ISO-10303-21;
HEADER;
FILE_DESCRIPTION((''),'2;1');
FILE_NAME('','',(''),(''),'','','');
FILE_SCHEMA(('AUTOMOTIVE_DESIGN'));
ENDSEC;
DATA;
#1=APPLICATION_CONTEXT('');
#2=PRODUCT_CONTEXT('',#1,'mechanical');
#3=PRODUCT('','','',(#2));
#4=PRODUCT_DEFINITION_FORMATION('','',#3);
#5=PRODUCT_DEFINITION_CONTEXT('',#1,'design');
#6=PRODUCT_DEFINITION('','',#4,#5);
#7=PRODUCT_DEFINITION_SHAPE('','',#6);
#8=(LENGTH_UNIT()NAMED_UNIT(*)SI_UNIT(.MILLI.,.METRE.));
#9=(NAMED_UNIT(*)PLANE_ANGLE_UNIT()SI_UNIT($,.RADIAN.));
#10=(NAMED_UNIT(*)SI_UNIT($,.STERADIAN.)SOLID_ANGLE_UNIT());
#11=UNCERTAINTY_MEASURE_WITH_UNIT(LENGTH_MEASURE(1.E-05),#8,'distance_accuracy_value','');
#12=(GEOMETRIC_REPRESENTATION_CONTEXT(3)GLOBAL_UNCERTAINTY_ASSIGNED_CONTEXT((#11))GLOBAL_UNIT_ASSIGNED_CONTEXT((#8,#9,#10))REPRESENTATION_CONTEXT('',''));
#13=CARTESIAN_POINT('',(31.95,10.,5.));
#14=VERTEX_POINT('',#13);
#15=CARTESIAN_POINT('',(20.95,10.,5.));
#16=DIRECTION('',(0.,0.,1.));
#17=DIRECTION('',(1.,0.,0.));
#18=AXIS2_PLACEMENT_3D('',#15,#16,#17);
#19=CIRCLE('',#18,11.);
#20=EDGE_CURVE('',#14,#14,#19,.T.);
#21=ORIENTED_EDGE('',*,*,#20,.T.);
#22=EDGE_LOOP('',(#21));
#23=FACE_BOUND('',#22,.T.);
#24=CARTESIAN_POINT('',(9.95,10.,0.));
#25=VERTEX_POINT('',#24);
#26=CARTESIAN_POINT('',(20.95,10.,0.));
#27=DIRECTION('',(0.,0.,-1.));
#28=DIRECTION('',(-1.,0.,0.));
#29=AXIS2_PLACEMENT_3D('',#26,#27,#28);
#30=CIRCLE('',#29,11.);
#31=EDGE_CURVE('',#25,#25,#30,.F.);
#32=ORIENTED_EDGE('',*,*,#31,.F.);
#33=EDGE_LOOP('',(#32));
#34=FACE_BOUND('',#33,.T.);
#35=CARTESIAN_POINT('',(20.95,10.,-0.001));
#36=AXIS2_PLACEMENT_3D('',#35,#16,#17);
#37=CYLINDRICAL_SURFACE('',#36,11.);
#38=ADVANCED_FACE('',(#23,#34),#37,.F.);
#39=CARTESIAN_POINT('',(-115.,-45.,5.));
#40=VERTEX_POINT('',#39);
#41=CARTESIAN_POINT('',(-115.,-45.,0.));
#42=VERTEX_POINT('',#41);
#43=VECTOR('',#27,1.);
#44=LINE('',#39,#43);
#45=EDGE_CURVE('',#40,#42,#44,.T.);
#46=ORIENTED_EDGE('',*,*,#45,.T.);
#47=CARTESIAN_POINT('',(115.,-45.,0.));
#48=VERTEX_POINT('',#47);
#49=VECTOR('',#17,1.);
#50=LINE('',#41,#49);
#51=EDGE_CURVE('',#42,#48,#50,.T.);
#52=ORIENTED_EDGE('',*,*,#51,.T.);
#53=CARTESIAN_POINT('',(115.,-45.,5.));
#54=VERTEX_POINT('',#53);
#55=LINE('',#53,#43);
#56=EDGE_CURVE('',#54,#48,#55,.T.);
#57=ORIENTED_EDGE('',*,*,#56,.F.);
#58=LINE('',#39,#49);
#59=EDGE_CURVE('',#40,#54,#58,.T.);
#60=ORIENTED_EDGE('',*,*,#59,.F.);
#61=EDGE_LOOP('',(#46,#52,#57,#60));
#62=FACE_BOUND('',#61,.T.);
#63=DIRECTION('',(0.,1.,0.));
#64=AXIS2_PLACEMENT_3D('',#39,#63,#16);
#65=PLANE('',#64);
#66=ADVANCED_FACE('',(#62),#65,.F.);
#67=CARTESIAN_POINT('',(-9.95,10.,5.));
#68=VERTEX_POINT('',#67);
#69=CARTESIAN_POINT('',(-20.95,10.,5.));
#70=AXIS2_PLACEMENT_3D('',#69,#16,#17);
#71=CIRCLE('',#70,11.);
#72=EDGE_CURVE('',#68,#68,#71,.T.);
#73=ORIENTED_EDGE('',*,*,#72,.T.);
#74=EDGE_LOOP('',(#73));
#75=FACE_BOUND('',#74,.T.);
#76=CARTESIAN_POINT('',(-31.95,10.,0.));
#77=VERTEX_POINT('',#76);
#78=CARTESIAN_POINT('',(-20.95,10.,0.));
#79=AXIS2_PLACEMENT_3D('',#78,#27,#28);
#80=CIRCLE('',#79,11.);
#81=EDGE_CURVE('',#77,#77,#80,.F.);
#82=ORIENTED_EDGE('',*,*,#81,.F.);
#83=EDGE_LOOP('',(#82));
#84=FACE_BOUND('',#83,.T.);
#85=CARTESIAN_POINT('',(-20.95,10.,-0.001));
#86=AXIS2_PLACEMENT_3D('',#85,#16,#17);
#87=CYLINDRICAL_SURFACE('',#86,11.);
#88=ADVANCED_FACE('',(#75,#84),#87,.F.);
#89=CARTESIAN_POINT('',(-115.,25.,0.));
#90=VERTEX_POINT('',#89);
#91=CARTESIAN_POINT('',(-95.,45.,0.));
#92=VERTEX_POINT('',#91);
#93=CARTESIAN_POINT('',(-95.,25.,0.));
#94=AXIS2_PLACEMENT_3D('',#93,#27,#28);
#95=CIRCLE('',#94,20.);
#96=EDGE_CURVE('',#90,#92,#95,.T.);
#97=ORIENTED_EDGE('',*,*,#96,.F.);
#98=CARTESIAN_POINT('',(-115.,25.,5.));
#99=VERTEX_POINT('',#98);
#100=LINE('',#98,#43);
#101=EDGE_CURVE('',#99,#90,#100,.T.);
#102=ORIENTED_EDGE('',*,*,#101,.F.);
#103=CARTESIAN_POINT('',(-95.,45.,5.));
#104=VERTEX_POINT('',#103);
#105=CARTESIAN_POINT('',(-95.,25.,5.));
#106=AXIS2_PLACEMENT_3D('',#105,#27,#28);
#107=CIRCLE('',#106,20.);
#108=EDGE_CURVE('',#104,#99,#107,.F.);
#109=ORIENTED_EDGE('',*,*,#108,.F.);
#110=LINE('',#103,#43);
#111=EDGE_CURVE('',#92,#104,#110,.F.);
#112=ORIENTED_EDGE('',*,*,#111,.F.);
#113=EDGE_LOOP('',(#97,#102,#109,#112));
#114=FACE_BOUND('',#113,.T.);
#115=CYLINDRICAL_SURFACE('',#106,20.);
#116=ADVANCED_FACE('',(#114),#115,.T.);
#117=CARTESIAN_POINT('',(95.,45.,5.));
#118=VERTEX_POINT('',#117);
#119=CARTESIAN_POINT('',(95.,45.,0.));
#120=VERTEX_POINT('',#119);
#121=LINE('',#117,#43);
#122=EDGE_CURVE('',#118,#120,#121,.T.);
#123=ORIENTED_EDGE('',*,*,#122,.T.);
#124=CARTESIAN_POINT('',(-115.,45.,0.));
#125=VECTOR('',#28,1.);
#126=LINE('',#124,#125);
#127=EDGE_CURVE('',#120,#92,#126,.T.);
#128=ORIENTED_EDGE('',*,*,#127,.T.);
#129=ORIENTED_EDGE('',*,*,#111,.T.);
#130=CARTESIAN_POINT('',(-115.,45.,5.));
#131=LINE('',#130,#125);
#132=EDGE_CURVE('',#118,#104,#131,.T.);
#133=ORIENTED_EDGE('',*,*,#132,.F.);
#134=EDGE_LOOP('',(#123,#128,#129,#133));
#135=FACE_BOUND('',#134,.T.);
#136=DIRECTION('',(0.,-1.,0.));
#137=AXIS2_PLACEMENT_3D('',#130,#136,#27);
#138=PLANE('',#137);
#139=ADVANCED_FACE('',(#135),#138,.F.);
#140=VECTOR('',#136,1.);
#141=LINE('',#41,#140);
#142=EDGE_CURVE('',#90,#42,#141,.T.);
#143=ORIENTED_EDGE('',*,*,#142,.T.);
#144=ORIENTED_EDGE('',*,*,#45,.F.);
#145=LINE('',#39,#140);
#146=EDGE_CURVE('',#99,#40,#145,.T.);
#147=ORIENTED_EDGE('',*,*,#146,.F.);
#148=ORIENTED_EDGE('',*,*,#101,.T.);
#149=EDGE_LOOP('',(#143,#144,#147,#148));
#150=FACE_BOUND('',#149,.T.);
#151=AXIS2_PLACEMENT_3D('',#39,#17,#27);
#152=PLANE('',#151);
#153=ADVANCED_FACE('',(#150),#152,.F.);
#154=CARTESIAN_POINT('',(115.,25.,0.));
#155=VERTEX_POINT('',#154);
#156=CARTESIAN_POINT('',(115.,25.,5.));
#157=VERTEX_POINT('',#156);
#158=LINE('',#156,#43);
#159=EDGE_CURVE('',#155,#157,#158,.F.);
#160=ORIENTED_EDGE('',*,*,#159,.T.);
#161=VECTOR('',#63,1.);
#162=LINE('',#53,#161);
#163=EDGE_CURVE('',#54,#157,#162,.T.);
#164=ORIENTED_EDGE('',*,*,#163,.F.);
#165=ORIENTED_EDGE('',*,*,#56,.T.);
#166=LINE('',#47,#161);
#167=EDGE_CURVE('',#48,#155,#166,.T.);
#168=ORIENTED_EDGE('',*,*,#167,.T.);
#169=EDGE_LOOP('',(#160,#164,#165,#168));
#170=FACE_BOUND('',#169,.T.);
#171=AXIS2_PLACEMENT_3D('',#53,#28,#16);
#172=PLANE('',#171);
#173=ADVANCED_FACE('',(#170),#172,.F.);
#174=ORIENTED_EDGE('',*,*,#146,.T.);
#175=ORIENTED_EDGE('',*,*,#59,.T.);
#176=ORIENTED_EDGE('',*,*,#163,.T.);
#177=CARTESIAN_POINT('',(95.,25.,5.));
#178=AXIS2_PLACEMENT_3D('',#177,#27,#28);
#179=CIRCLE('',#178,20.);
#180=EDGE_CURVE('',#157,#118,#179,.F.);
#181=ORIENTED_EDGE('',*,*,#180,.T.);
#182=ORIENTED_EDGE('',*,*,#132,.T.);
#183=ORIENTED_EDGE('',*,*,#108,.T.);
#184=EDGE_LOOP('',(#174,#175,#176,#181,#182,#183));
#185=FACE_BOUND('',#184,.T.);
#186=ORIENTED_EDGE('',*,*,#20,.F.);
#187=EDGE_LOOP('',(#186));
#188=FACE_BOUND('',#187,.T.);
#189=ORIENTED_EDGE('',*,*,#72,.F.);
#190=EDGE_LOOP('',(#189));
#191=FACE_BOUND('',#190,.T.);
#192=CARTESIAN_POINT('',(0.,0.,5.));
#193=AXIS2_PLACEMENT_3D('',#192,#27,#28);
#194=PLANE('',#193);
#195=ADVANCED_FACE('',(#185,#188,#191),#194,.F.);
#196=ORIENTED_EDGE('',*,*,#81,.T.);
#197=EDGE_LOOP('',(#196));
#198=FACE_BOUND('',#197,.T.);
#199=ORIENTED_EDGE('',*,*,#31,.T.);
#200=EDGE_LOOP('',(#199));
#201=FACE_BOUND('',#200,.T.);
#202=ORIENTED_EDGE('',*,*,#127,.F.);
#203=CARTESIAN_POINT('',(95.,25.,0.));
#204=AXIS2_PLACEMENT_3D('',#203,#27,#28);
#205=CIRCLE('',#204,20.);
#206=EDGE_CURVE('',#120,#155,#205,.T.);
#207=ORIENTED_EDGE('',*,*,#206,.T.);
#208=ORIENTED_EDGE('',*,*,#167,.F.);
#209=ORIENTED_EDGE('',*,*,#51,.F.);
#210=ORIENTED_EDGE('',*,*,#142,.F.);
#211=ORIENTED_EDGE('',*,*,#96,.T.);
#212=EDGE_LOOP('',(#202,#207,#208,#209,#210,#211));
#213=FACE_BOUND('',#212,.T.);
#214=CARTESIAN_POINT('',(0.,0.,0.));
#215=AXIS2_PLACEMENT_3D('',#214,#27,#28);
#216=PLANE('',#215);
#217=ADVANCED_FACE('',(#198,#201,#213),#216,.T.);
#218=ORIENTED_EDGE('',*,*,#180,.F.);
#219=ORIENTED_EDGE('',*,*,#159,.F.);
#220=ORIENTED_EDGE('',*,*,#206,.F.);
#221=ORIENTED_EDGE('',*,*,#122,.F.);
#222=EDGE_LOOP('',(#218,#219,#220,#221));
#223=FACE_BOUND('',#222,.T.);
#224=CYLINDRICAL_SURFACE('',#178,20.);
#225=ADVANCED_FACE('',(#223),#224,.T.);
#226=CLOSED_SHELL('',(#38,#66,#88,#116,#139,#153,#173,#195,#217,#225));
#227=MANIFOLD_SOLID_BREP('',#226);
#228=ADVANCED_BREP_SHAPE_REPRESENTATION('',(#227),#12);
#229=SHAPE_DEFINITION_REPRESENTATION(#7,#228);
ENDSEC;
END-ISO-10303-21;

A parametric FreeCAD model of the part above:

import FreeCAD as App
import Part
import Sketcher

V = App.Vector
Q = App.Units.Quantity


def edges_at(feature, points):
    """Names of the edges that pass closest to the given points."""
    edges = feature.Shape.Edges
    near = lambda p: min(range(len(edges)), key=lambda i: edges[i].distToShape(Part.Vertex(*p))[0])
    return sorted({f"Edge{near(p) + 1}" for p in points})


def add_polygon(sketch, points):
    """Adds a closed chain of lines whose ends are joined by coincident constraints."""
    first, n = sketch.GeometryCount, len(points)
    for a, b in zip(points, points[1:] + points[:1]):
        sketch.addGeometry(Part.LineSegment(App.Vector(*a, 0), App.Vector(*b, 0)), False)
    for i in range(n):
        sketch.addConstraint(Sketcher.Constraint("Coincident", first + i, 2, first + (i + 1) % n, 1))

doc = App.newDocument("Part")
body = doc.addObject("PartDesign::Body", "Body")

sketch1 = doc.addObject("Sketcher::SketchObject", "Sketch")
body.addObject(sketch1)
sketch1.AttachmentSupport = (doc.XY_Plane, [""])
sketch1.MapMode = "FlatFace"
add_polygon(sketch1, [(-115, 45), (-115, -45), (115, -45), (115, 45)])
sketch1.addConstraint([
    Sketcher.Constraint("Vertical", 0),
    Sketcher.Constraint("Horizontal", 1),
    Sketcher.Constraint("Vertical", 2),
    Sketcher.Constraint("Horizontal", 3),
    Sketcher.Constraint("Symmetric", 0, 2, 2, 2, -1, 1),
    Sketcher.Constraint("DistanceX", 1, 1, 1, 2, Q("230 mm")),
    Sketcher.Constraint("DistanceY", 0, 2, 0, 1, Q("90 mm")),
])
pad1 = doc.addObject("PartDesign::Pad", "Pad")
body.addObject(pad1)
pad1.Profile = sketch1
pad1.Length = 5
doc.recompute()

fillet = doc.addObject("PartDesign::Fillet", "Fillet")
body.addObject(fillet)
fillet.Base = (pad1, edges_at(pad1, [(-115, 45, 2.5), (115, 45, 2.5)]))
fillet.Radius = 20

sketch2 = doc.addObject("Sketcher::SketchObject", "Sketch001")
body.addObject(sketch2)
sketch2.AttachmentSupport = (doc.XY_Plane, [""])
sketch2.MapMode = "FlatFace"
sketch2.AttachmentOffset = App.Placement(V(0, 0, 5), App.Rotation())
sketch2.addGeometry(Part.Circle(V(-21, 10, 0), V(0, 0, 1), 11), False)
sketch2.addConstraint([
    Sketcher.Constraint("Diameter", 0, Q("22 mm")),
    Sketcher.Constraint("DistanceY", -1, 1, 0, 3, Q("10 mm")),
    Sketcher.Constraint("DistanceX", 0, 3, -1, 1, Q("20.95 mm")),
])
pocket1 = doc.addObject("PartDesign::Pocket", "Pocket")
body.addObject(pocket1)
pocket1.Profile = sketch2
pocket1.Type = "UpToFirst"

sketch3 = doc.addObject("Sketcher::SketchObject", "Sketch002")
body.addObject(sketch3)
sketch3.AttachmentSupport = (doc.XY_Plane, [""])
sketch3.MapMode = "FlatFace"
sketch3.AttachmentOffset = App.Placement(V(0, 0, 5), App.Rotation())
sketch3.addGeometry(Part.Circle(V(21, 10, 0), V(0, 0, 1), 11), False)
sketch3.addConstraint([
    Sketcher.Constraint("Diameter", 0, Q("22 mm")),
    Sketcher.Constraint("DistanceY", -1, 1, 0, 3, Q("10 mm")),
    Sketcher.Constraint("DistanceX", -1, 1, 0, 3, Q("20.95 mm")),
])
pocket2 = doc.addObject("PartDesign::Pocket", "Pocket001")
body.addObject(pocket2)
pocket2.Profile = sketch3
pocket2.Type = "UpToFirst"

doc.recompute()
